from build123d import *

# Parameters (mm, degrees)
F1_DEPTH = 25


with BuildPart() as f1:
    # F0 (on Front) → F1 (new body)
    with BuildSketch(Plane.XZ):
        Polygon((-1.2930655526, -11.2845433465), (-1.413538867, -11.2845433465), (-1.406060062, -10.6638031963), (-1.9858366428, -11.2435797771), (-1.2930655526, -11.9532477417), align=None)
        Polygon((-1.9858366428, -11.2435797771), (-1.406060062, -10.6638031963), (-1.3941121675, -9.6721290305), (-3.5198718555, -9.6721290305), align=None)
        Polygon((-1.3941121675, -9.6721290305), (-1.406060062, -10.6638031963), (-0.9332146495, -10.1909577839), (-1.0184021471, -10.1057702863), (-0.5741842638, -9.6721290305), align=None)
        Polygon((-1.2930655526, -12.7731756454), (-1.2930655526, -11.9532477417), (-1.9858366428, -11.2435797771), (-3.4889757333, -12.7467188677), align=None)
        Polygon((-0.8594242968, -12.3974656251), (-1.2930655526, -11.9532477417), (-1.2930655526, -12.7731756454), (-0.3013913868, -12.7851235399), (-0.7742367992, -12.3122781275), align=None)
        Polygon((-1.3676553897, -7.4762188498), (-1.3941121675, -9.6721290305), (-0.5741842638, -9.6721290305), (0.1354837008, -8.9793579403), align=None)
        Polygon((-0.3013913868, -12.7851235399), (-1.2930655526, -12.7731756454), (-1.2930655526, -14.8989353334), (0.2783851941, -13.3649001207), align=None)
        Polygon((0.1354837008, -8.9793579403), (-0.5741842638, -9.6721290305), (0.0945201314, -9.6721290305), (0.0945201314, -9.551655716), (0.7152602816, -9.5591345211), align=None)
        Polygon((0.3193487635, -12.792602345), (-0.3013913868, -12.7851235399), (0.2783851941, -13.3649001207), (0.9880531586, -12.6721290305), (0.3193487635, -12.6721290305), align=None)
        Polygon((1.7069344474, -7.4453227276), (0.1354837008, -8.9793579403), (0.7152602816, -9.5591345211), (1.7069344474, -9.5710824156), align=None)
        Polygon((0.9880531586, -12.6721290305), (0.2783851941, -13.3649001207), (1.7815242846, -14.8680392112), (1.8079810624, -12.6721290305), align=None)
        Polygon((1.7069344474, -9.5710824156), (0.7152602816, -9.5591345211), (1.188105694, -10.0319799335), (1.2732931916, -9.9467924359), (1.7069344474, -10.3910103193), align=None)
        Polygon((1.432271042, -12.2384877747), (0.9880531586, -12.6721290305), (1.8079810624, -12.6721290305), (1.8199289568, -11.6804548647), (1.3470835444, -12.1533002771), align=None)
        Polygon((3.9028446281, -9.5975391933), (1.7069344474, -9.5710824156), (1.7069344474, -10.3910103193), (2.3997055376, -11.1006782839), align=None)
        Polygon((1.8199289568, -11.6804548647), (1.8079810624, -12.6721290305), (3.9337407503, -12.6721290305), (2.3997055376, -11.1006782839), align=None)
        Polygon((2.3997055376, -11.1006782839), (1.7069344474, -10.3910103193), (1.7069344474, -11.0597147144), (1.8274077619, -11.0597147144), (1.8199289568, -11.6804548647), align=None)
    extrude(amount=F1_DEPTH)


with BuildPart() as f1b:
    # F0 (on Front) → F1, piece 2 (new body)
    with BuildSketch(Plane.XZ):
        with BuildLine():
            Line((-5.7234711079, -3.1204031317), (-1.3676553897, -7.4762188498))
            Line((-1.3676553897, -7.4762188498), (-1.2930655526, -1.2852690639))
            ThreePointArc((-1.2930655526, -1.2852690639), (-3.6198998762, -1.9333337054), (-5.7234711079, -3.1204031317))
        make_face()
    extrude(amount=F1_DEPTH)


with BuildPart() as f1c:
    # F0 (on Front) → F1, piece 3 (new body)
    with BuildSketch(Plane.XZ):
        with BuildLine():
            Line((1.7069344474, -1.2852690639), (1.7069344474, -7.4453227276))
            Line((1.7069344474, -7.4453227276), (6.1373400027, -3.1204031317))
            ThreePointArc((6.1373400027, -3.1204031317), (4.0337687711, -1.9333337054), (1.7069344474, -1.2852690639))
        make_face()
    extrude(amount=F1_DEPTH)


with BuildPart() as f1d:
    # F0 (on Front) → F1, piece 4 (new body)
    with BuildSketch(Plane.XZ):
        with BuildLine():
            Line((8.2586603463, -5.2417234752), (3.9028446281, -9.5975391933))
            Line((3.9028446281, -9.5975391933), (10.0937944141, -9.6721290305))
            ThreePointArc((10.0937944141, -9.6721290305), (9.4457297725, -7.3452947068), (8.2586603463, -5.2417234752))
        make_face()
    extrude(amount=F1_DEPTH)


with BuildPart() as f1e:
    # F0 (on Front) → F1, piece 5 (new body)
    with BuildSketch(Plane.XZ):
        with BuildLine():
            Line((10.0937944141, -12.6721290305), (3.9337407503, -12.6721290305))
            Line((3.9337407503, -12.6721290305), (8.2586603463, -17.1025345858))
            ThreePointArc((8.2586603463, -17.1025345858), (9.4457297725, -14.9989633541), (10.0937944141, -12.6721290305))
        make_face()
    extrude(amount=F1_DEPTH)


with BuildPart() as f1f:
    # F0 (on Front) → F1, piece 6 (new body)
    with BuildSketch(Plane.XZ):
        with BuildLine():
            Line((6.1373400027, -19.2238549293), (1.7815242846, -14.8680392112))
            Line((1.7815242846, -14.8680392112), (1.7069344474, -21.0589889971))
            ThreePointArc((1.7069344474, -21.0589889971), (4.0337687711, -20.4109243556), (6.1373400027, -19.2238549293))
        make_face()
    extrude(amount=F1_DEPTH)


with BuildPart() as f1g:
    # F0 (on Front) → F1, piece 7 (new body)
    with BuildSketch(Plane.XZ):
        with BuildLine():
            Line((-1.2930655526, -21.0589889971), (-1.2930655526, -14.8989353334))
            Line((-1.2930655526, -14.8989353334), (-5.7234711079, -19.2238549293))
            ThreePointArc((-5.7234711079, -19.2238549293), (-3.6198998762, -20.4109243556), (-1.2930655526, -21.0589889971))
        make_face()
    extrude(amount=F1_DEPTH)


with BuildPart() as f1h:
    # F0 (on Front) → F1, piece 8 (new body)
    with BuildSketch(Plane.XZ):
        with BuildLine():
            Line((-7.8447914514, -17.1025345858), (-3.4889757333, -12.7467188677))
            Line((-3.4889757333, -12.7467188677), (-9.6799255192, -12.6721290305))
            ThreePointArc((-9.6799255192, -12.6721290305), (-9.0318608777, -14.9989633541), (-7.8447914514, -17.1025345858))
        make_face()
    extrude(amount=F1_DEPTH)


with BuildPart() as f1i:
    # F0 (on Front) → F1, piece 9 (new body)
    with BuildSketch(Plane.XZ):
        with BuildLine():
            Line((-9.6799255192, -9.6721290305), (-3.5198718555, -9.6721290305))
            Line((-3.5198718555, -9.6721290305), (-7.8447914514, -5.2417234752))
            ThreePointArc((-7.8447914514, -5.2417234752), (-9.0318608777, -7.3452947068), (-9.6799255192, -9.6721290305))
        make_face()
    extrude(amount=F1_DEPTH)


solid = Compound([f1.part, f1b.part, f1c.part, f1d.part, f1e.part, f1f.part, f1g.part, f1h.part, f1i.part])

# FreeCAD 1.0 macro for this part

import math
import FreeCAD as App
import Part
import Sketcher

V = App.Vector
Q = App.Units.Quantity


def add_polygon(sketch, points):
    """Adds a closed chain of lines whose ends are joined by coincident constraints."""
    first, n = sketch.GeometryCount, len(points)
    for a, b in zip(points, points[1:] + points[:1]):
        sketch.addGeometry(Part.LineSegment(App.Vector(*a, 0), App.Vector(*b, 0)), False)
    for i in range(n):
        sketch.addConstraint(Sketcher.Constraint("Coincident", first + i, 2, first + (i + 1) % n, 1))

doc = App.newDocument("Part")
params = doc.addObject("Spreadsheet::Sheet", "Params")
for row, (alias, value) in enumerate([
    ("pad1_length", "25 mm"),
    ("sketch2_radius", "10 mm"),
    ("pad2_length", "25 mm"),
    ("sketch3_radius", "10 mm"),
    ("pad3_length", "25 mm"),
    ("sketch4_radius", "10 mm"),
    ("pad4_length", "25 mm"),
    ("sketch5_radius", "10 mm"),
    ("pad5_length", "25 mm"),
    ("sketch6_radius", "10 mm"),
    ("pad6_length", "25 mm"),
    ("sketch7_radius", "10 mm"),
    ("pad7_length", "25 mm"),
    ("sketch8_radius", "10 mm"),
    ("pad8_length", "25 mm"),
    ("sketch9_radius", "10 mm"),
    ("pad9_length", "25 mm"),
], start=1):
    params.set(f"A{row}", alias)
    params.set(f"B{row}", "=" + value)
    params.setAlias(f"B{row}", alias)

body = doc.addObject("PartDesign::Body", "Body")

# Sketch on XZ plane
sketch1 = doc.addObject("Sketcher::SketchObject", "Sketch")
body.addObject(sketch1)
sketch1.AttachmentSupport = (doc.XZ_Plane, [""])
sketch1.MapMode = "FlatFace"
add_polygon(sketch1, [(3.93, -12.67), (2.4, -11.1), (3.9, -9.6), (1.71, -9.57), (1.71, -7.45), (0.14, -8.98), (-1.37, -7.48), (-1.39, -9.67), (-3.52, -9.67), (-1.99, -11.24), (-3.49, -12.75), (-1.29, -12.77), (-1.29, -14.9), (0.28, -13.36), (1.78, -14.87), (1.81, -12.67)])  # lines 0-15
add_polygon(sketch1, [(1.27, -9.95), (1.71, -10.39), (1.71, -11.06), (1.83, -11.06), (1.82, -11.68), (1.35, -12.15), (1.43, -12.24), (0.99, -12.67), (0.32, -12.67), (0.32, -12.79), (-0.3, -12.79), (-0.77, -12.31), (-0.86, -12.4), (-1.29, -11.95), (-1.29, -11.28), (-1.41, -11.28), (-1.41, -10.66), (-0.93, -10.19), (-1.02, -10.11), (-0.57, -9.67), (0.09, -9.67), (0.09, -9.55), (0.72, -9.56), (1.19, -10.03)])  # lines 16-39
sketch1.addConstraint([
    Sketcher.Constraint("Vertical", 3),
    Sketcher.Constraint("Horizontal", 7),
    Sketcher.Constraint("Vertical", 11),
    Sketcher.Constraint("Horizontal", 15),
    Sketcher.Constraint("Vertical", 17),
    Sketcher.Constraint("Horizontal", 18),
    Sketcher.Constraint("Horizontal", 23),
    Sketcher.Constraint("Vertical", 24),
    Sketcher.Constraint("Vertical", 29),
    Sketcher.Constraint("Horizontal", 30),
    Sketcher.Constraint("Horizontal", 35),
    Sketcher.Constraint("Vertical", 36),
    Sketcher.Constraint("Perpendicular", 0, 4),
    Sketcher.Constraint("Perpendicular", 1, 5),
    Sketcher.Constraint("Perpendicular", 2, 6),
    Sketcher.Constraint("Perpendicular", 4, 8),
    Sketcher.Constraint("Perpendicular", 5, 9),
    Sketcher.Constraint("Perpendicular", 6, 10),
    Sketcher.Constraint("Perpendicular", 8, 12),
    Sketcher.Constraint("Perpendicular", 9, 13),
    Sketcher.Constraint("Perpendicular", 10, 14),
    Sketcher.Constraint("Perpendicular", 12, 16),
    Sketcher.Constraint("Parallel", 14, 19),
    Sketcher.Constraint("Perpendicular", 13, 20),
    Sketcher.Constraint("Perpendicular", 20, 21),
    Sketcher.Constraint("Perpendicular", 16, 22),
    Sketcher.Constraint("Perpendicular", 19, 25),
    Sketcher.Constraint("Parallel", 21, 26),
    Sketcher.Constraint("Perpendicular", 26, 27),
    Sketcher.Constraint("Perpendicular", 22, 28),
    Sketcher.Constraint("Perpendicular", 25, 31),
    Sketcher.Constraint("Parallel", 27, 32),
    Sketcher.Constraint("Perpendicular", 32, 33),
    Sketcher.Constraint("Perpendicular", 28, 34),
    Sketcher.Constraint("Perpendicular", 31, 37),
    Sketcher.Constraint("Parallel", 33, 38),
    Sketcher.Constraint("Perpendicular", 38, 39),
    Sketcher.Constraint("Horizontal", 15, 2, 22, 2),
    Sketcher.Constraint("Horizontal", 7, 2, 34, 2),
    Sketcher.Constraint("Vertical", 3, 2, 16, 2),
    Sketcher.Constraint("Vertical", 11, 2, 28, 2),
    Sketcher.Constraint("Equal", 7, 15),
    Sketcher.Constraint("Equal", 18, 30),
    Sketcher.Constraint("Equal", 23, 35),
    Sketcher.Constraint("Equal", 15, 3),
    Sketcher.Constraint("Equal", 3, 11),
    Sketcher.Constraint("Equal", 35, 17),
    Sketcher.Constraint("Equal", 30, 24),
    Sketcher.Constraint("Equal", 17, 29),
    Sketcher.Constraint("Equal", 24, 36),
    Sketcher.Constraint("Equal", 0, 2),
    Sketcher.Constraint("Equal", 2, 4),
    Sketcher.Constraint("Equal", 1, 5),
    Sketcher.Constraint("Equal", 4, 6),
    Sketcher.Constraint("Equal", 6, 8),
    Sketcher.Constraint("Equal", 5, 9),
    Sketcher.Constraint("Equal", 8, 10),
    Sketcher.Constraint("Equal", 10, 12),
    Sketcher.Constraint("Equal", 16, 19),
    Sketcher.Constraint("Equal", 19, 22),
    Sketcher.Constraint("Equal", 22, 25),
    Sketcher.Constraint("Equal", 20, 26),
    Sketcher.Constraint("Equal", 21, 27),
    Sketcher.Constraint("Equal", 25, 28),
    Sketcher.Constraint("Equal", 28, 31),
    Sketcher.Constraint("Equal", 26, 32),
    Sketcher.Constraint("Equal", 27, 33),
    Sketcher.Constraint("Equal", 34, 37),
    Sketcher.Constraint("Angle", 1, Q("45 deg")),
    Sketcher.Constraint("DistanceX", 7, 2, 7, 1, 2.12576),
    Sketcher.Constraint("DistanceY", 12, 2, -1, 1, 13.3649),
    Sketcher.Constraint("DistanceY", 20, 2, -1, 1, 12.1533),
    Sketcher.Constraint("DistanceX", 5, 2, 1, 2, 5.2705),
    Sketcher.Constraint("Distance", 0, 2.19607),
    Sketcher.Constraint("Distance", 1, 2.12576),
    Sketcher.Constraint("DistanceX", 18, 1, 18, 2, 0.120473),
    Sketcher.Constraint("DistanceX", 23, 2, 23, 1, 0.668704),
    Sketcher.Constraint("DistanceY", 5, 2, -1, 1, 7.476219),
    Sketcher.Constraint("DistanceX", 7, 2, -1, 1, 3.519872),
    Sketcher.Constraint("DistanceY", 16, 2, -1, 1, 10.39101),
])
pad1 = doc.addObject("PartDesign::Pad", "Pad")
body.addObject(pad1)
pad1.Profile = sketch1
pad1.setExpression("Length", "Params.pad1_length")
body2 = doc.addObject("PartDesign::Body", "Body001")

# Sketch on XZ plane
sketch2 = doc.addObject("Sketcher::SketchObject", "Sketch001")
body2.addObject(sketch2)
sketch2.AttachmentSupport = (doc.getObject("XZ_Plane001"), [""])
sketch2.MapMode = "FlatFace"
sketch2.addGeometry([
    Part.LineSegment(V(-5.7, -3.1, 0), V(-1.4, -7.5, 0)),
    Part.LineSegment(V(-1.4, -7.5, 0), V(-1.3, -1.3, 0)),
    Part.ArcOfCircle(Part.Circle(V(0.2, -11.2, 0), V(0, 0, 1), 10), math.radians(99), math.radians(126)),
], False)
sketch2.addConstraint([
    Sketcher.Constraint("Coincident", 0, 2, 1, 1),
    Sketcher.Constraint("Coincident", 1, 2, 2, 1),
    Sketcher.Constraint("Coincident", 2, 2, 0, 1),
    Sketcher.Constraint("Radius", 2, 10.0),
    Sketcher.Constraint("Angle", 0, Q("-45 deg")),
    Sketcher.Constraint("DistanceX", 1, 2, 2, 3, 1.5),
    Sketcher.Constraint("Distance", 1, 6.191399),
    Sketcher.Constraint("DistanceY", 2, 3, -1, 1, 11.172129),
    Sketcher.Constraint("DistanceY", 0, 2, -1, 1, 7.476219),
    Sketcher.Constraint("DistanceX", 2, 2, -1, 1, 5.723471),
])
sketch2.setExpression("Constraints[3]", "Params.sketch2_radius")
pad2 = doc.addObject("PartDesign::Pad", "Pad001")
body2.addObject(pad2)
pad2.Profile = sketch2
pad2.setExpression("Length", "Params.pad2_length")
body3 = doc.addObject("PartDesign::Body", "Body002")

# Sketch on XZ plane
sketch3 = doc.addObject("Sketcher::SketchObject", "Sketch002")
body3.addObject(sketch3)
sketch3.AttachmentSupport = (doc.getObject("XZ_Plane002"), [""])
sketch3.MapMode = "FlatFace"
sketch3.addGeometry([
    Part.LineSegment(V(1.7, -1.3, 0), V(1.7, -7.4, 0)),
    Part.LineSegment(V(1.7, -7.4, 0), V(6.1, -3.1, 0)),
    Part.ArcOfCircle(Part.Circle(V(0.2, -11.2, 0), V(0, 0, 1), 10), math.radians(54), math.radians(81)),
], False)
sketch3.addConstraint([
    Sketcher.Constraint("Coincident", 0, 2, 1, 1),
    Sketcher.Constraint("Coincident", 1, 2, 2, 1),
    Sketcher.Constraint("Coincident", 2, 2, 0, 1),
    Sketcher.Constraint("Vertical", 0),
    Sketcher.Constraint("Radius", 2, 10.0),
    Sketcher.Constraint("DistanceX", 2, 3, 0, 2, 1.5),
    Sketcher.Constraint("Distance", 1, 6.191399),
    Sketcher.Constraint("DistanceY", 0, 2, 0, 1, 6.160054),
    Sketcher.Constraint("DistanceY", 2, 3, -1, 1, 11.172129),
    Sketcher.Constraint("DistanceX", -1, 1, 1, 2, 6.13734),
])
sketch3.setExpression("Constraints[4]", "Params.sketch3_radius")
pad3 = doc.addObject("PartDesign::Pad", "Pad002")
body3.addObject(pad3)
pad3.Profile = sketch3
pad3.setExpression("Length", "Params.pad3_length")
body4 = doc.addObject("PartDesign::Body", "Body003")

# Sketch on XZ plane
sketch4 = doc.addObject("Sketcher::SketchObject", "Sketch003")
body4.addObject(sketch4)
sketch4.AttachmentSupport = (doc.getObject("XZ_Plane003"), [""])
sketch4.MapMode = "FlatFace"
sketch4.addGeometry([
    Part.LineSegment(V(8.3, -5.2, 0), V(3.9, -9.6, 0)),
    Part.LineSegment(V(3.9, -9.6, 0), V(10.1, -9.7, 0)),
    Part.ArcOfCircle(Part.Circle(V(0.2, -11.2, 0), V(0, 0, 1), 10), math.radians(9), math.radians(36)),
], False)
sketch4.addConstraint([
    Sketcher.Constraint("Coincident", 0, 2, 1, 1),
    Sketcher.Constraint("Coincident", 1, 2, 2, 1),
    Sketcher.Constraint("Coincident", 2, 2, 0, 1),
    Sketcher.Constraint("Radius", 2, 10.0),
    Sketcher.Constraint("Angle", 0, Q("-135 deg")),
    Sketcher.Constraint("DistanceY", 2, 3, 1, 2, 1.5),
    Sketcher.Constraint("Distance", 1, 6.191399),
    Sketcher.Constraint("DistanceY", 2, 3, -1, 1, 11.172129),
    Sketcher.Constraint("DistanceY", 0, 2, -1, 1, 9.597539),
    Sketcher.Constraint("DistanceX", -1, 1, 2, 2, 8.25866),
])
sketch4.setExpression("Constraints[3]", "Params.sketch4_radius")
pad4 = doc.addObject("PartDesign::Pad", "Pad003")
body4.addObject(pad4)
pad4.Profile = sketch4
pad4.setExpression("Length", "Params.pad4_length")
body5 = doc.addObject("PartDesign::Body", "Body004")

# Sketch on XZ plane
sketch5 = doc.addObject("Sketcher::SketchObject", "Sketch004")
body5.addObject(sketch5)
sketch5.AttachmentSupport = (doc.getObject("XZ_Plane004"), [""])
sketch5.MapMode = "FlatFace"
sketch5.addGeometry([
    Part.LineSegment(V(10.1, -12.7, 0), V(3.9, -12.7, 0)),
    Part.LineSegment(V(3.9, -12.7, 0), V(8.3, -17.1, 0)),
    Part.ArcOfCircle(Part.Circle(V(0.2, -11.2, 0), V(0, 0, 1), 10), math.radians(-36), math.radians(-9)),
], False)
sketch5.addConstraint([
    Sketcher.Constraint("Coincident", 0, 2, 1, 1),
    Sketcher.Constraint("Coincident", 1, 2, 2, 1),
    Sketcher.Constraint("Coincident", 2, 2, 0, 1),
    Sketcher.Constraint("Horizontal", 0),
    Sketcher.Constraint("Radius", 2, 10.0),
    Sketcher.Constraint("DistanceY", 0, 2, 2, 3, 1.5),
    Sketcher.Constraint("Distance", 1, 6.191399),
    Sketcher.Constraint("DistanceX", 0, 2, 0, 1, 6.160054),
    Sketcher.Constraint("DistanceY", 2, 3, -1, 1, 11.172129),
    Sketcher.Constraint("DistanceX", -1, 1, 0, 2, 3.933741),
])
sketch5.setExpression("Constraints[4]", "Params.sketch5_radius")
pad5 = doc.addObject("PartDesign::Pad", "Pad004")
body5.addObject(pad5)
pad5.Profile = sketch5
pad5.setExpression("Length", "Params.pad5_length")
body6 = doc.addObject("PartDesign::Body", "Body005")

# Sketch on XZ plane
sketch6 = doc.addObject("Sketcher::SketchObject", "Sketch005")
body6.addObject(sketch6)
sketch6.AttachmentSupport = (doc.getObject("XZ_Plane005"), [""])
sketch6.MapMode = "FlatFace"
sketch6.addGeometry([
    Part.LineSegment(V(6.1, -19.2, 0), V(1.8, -14.9, 0)),
    Part.LineSegment(V(1.8, -14.9, 0), V(1.7, -21.1, 0)),
    Part.ArcOfCircle(Part.Circle(V(0.2, -11.2, 0), V(0, 0, 1), 10), math.radians(-81), math.radians(-54)),
], False)
sketch6.addConstraint([
    Sketcher.Constraint("Coincident", 0, 2, 1, 1),
    Sketcher.Constraint("Coincident", 1, 2, 2, 1),
    Sketcher.Constraint("Coincident", 2, 2, 0, 1),
    Sketcher.Constraint("Radius", 2, 10.0),
    Sketcher.Constraint("Angle", 0, Q("135 deg")),
    Sketcher.Constraint("DistanceX", 2, 3, 1, 2, 1.5),
    Sketcher.Constraint("Distance", 1, 6.191399),
    Sketcher.Constraint("DistanceY", 2, 3, -1, 1, 11.172129),
    Sketcher.Constraint("DistanceY", 0, 2, -1, 1, 14.868039),
    Sketcher.Constraint("DistanceX", -1, 1, 2, 2, 6.13734),
])
sketch6.setExpression("Constraints[3]", "Params.sketch6_radius")
pad6 = doc.addObject("PartDesign::Pad", "Pad005")
body6.addObject(pad6)
pad6.Profile = sketch6
pad6.setExpression("Length", "Params.pad6_length")
body7 = doc.addObject("PartDesign::Body", "Body006")

# Sketch on XZ plane
sketch7 = doc.addObject("Sketcher::SketchObject", "Sketch006")
body7.addObject(sketch7)
sketch7.AttachmentSupport = (doc.getObject("XZ_Plane006"), [""])
sketch7.MapMode = "FlatFace"
sketch7.addGeometry([
    Part.LineSegment(V(-1.3, -21.1, 0), V(-1.3, -14.9, 0)),
    Part.LineSegment(V(-1.3, -14.9, 0), V(-5.7, -19.2, 0)),
    Part.ArcOfCircle(Part.Circle(V(0.2, -11.2, 0), V(0, 0, 1), 10), math.radians(-126), math.radians(-99)),
], False)
sketch7.addConstraint([
    Sketcher.Constraint("Coincident", 0, 2, 1, 1),
    Sketcher.Constraint("Coincident", 1, 2, 2, 1),
    Sketcher.Constraint("Coincident", 2, 2, 0, 1),
    Sketcher.Constraint("Vertical", 0),
    Sketcher.Constraint("Radius", 2, 10.0),
    Sketcher.Constraint("DistanceX", 0, 2, 2, 3, 1.5),
    Sketcher.Constraint("Distance", 1, 6.191399),
    Sketcher.Constraint("DistanceY", 0, 1, 0, 2, 6.160054),
    Sketcher.Constraint("DistanceY", 2, 3, -1, 1, 11.172129),
    Sketcher.Constraint("DistanceX", 1, 2, -1, 1, 5.723471),
])
sketch7.setExpression("Constraints[4]", "Params.sketch7_radius")
pad7 = doc.addObject("PartDesign::Pad", "Pad006")
body7.addObject(pad7)
pad7.Profile = sketch7
pad7.setExpression("Length", "Params.pad7_length")
body8 = doc.addObject("PartDesign::Body", "Body007")

# Sketch on XZ plane
sketch8 = doc.addObject("Sketcher::SketchObject", "Sketch007")
body8.addObject(sketch8)
sketch8.AttachmentSupport = (doc.getObject("XZ_Plane007"), [""])
sketch8.MapMode = "FlatFace"
sketch8.addGeometry([
    Part.LineSegment(V(-7.8, -17.1, 0), V(-3.5, -12.7, 0)),
    Part.LineSegment(V(-3.5, -12.7, 0), V(-9.7, -12.7, 0)),
    Part.ArcOfCircle(Part.Circle(V(0.2, -11.2, 0), V(0, 0, 1), 10), math.radians(-171), math.radians(-144)),
], False)
sketch8.addConstraint([
    Sketcher.Constraint("Coincident", 0, 2, 1, 1),
    Sketcher.Constraint("Coincident", 1, 2, 2, 1),
    Sketcher.Constraint("Coincident", 2, 2, 0, 1),
    Sketcher.Constraint("Radius", 2, 10.0),
    Sketcher.Constraint("Angle", 0, Q("45 deg")),
    Sketcher.Constraint("DistanceY", 1, 2, 2, 3, 1.5),
    Sketcher.Constraint("Distance", 1, 6.191399),
    Sketcher.Constraint("DistanceY", 2, 3, -1, 1, 11.172129),
    Sketcher.Constraint("DistanceY", 0, 2, -1, 1, 12.746719),
    Sketcher.Constraint("DistanceX", 2, 2, -1, 1, 7.844791),
])
sketch8.setExpression("Constraints[3]", "Params.sketch8_radius")
pad8 = doc.addObject("PartDesign::Pad", "Pad007")
body8.addObject(pad8)
pad8.Profile = sketch8
pad8.setExpression("Length", "Params.pad8_length")
body9 = doc.addObject("PartDesign::Body", "Body008")

# Sketch on XZ plane
sketch9 = doc.addObject("Sketcher::SketchObject", "Sketch008")
body9.addObject(sketch9)
sketch9.AttachmentSupport = (doc.getObject("XZ_Plane008"), [""])
sketch9.MapMode = "FlatFace"
sketch9.addGeometry([
    Part.LineSegment(V(-9.7, -9.7, 0), V(-3.5, -9.7, 0)),
    Part.LineSegment(V(-3.5, -9.7, 0), V(-7.8, -5.2, 0)),
    Part.ArcOfCircle(Part.Circle(V(0.2, -11.2, 0), V(0, 0, 1), 10), math.radians(144), math.radians(171)),
], False)
sketch9.addConstraint([
    Sketcher.Constraint("Coincident", 0, 2, 1, 1),
    Sketcher.Constraint("Coincident", 1, 2, 2, 1),
    Sketcher.Constraint("Coincident", 2, 2, 0, 1),
    Sketcher.Constraint("Horizontal", 0),
    Sketcher.Constraint("Radius", 2, 10.0),
    Sketcher.Constraint("DistanceY", 2, 3, 0, 2, 1.5),
    Sketcher.Constraint("Distance", 1, 6.191399),
    Sketcher.Constraint("DistanceX", 0, 1, 0, 2, 6.160054),
    Sketcher.Constraint("DistanceY", 2, 3, -1, 1, 11.172129),
    Sketcher.Constraint("DistanceX", 0, 2, -1, 1, 3.519872),
])
sketch9.setExpression("Constraints[4]", "Params.sketch9_radius")
pad9 = doc.addObject("PartDesign::Pad", "Pad008")
body9.addObject(pad9)
pad9.Profile = sketch9
pad9.setExpression("Length", "Params.pad9_length")

doc.recompute()
